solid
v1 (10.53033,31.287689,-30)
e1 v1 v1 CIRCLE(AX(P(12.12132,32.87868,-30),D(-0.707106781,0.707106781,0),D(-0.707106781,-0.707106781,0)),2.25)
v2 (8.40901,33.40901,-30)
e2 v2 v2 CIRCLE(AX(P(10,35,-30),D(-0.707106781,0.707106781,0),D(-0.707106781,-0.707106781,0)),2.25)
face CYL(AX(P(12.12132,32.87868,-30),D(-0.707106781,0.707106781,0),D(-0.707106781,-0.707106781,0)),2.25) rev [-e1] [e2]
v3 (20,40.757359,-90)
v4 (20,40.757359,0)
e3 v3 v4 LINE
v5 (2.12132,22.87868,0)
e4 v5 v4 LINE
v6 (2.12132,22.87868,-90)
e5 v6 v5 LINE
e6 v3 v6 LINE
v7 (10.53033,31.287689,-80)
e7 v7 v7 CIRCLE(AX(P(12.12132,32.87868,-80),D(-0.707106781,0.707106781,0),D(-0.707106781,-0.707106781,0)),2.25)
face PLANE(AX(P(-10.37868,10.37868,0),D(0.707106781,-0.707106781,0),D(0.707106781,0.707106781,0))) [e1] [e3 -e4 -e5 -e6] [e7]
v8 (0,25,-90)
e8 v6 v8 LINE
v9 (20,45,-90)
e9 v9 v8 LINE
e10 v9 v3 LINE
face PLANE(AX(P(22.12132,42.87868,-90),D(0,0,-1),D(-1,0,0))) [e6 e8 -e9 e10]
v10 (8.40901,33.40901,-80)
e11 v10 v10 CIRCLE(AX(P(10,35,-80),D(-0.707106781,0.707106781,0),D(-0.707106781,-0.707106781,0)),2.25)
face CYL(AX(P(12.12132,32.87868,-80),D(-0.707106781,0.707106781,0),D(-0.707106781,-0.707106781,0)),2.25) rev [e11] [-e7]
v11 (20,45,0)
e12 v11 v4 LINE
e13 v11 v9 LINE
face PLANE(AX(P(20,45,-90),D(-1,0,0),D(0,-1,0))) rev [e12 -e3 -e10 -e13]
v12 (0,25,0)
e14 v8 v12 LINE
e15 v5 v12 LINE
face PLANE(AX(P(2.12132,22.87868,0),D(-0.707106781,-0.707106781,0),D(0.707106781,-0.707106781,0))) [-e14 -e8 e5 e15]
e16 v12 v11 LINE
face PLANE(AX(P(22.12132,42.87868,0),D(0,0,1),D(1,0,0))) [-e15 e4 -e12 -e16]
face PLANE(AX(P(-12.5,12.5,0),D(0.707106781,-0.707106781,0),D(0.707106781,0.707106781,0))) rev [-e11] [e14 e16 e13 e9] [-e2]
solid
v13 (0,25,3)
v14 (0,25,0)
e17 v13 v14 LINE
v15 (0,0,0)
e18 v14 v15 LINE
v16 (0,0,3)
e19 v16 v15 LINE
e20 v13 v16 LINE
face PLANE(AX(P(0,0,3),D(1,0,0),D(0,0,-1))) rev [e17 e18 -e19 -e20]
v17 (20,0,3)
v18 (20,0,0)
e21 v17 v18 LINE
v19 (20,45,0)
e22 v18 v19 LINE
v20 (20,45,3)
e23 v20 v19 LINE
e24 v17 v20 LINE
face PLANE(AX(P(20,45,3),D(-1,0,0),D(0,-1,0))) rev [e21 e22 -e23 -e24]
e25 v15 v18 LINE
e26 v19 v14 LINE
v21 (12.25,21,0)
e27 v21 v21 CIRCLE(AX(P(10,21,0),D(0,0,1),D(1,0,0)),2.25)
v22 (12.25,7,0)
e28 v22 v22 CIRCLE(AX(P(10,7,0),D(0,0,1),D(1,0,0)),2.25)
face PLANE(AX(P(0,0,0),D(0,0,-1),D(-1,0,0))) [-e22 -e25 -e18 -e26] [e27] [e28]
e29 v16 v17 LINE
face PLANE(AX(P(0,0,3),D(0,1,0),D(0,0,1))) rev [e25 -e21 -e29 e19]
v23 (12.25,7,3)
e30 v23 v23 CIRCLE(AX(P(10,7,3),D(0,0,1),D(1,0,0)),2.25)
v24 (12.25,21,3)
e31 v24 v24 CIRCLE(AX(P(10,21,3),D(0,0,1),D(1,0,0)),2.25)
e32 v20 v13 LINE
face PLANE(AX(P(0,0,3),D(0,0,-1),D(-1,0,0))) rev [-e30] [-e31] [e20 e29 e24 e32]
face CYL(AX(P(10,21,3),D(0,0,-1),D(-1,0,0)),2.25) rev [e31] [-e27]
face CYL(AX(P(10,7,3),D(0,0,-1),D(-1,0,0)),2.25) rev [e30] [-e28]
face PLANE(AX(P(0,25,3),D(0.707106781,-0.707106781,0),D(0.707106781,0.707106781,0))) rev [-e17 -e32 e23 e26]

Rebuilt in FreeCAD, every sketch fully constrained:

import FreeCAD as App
import Part
import Sketcher
from FreeCAD import Vector
Q = App.Units.Quantity

doc = App.newDocument("Part")
body = doc.addObject("PartDesign::Body", "Body")

# Sketch on XY plane
sketch1 = body.newObject("Sketcher::SketchObject", "Sketch")
sketch1.AttachmentSupport = (doc.getObject("XY_Plane"), [""])
sketch1.MapMode = "FlatFace"
sketch1.addGeometry(Part.LineSegment(Vector(0, 0, 0), Vector(20, 0, 0)), False)
sketch1.addGeometry(Part.LineSegment(Vector(20, 0, 0), Vector(20, 45, 0)), False)
sketch1.addGeometry(Part.LineSegment(Vector(20, 45, 0), Vector(0, 25, 0)), False)
sketch1.addGeometry(Part.LineSegment(Vector(0, 25, 0), Vector(0, 0, 0)), False)
sketch1.addGeometry(Part.Circle(Vector(10, 7, 0), Vector(0, 0, 1), 2.2), False)
sketch1.addGeometry(Part.Circle(Vector(10, 21, 0), Vector(0, 0, 1), 2.2), False)
sketch1.addConstraint(Sketcher.Constraint("Coincident", 0, 2, 1, 1))
sketch1.addConstraint(Sketcher.Constraint("Coincident", 1, 2, 2, 1))
sketch1.addConstraint(Sketcher.Constraint("Coincident", 2, 2, 3, 1))
sketch1.addConstraint(Sketcher.Constraint("Coincident", 3, 2, 0, 1))
sketch1.addConstraint(Sketcher.Constraint("Horizontal", 0))
sketch1.addConstraint(Sketcher.Constraint("Vertical", 1))
sketch1.addConstraint(Sketcher.Constraint("Vertical", 3))
sketch1.addConstraint(Sketcher.Constraint("Coincident", 3, 2, -1, 1))
sketch1.addConstraint(Sketcher.Constraint("Equal", 4, 5))
sketch1.addConstraint(Sketcher.Constraint("Vertical", 4, 3, 5, 3))
sketch1.addConstraint(Sketcher.Constraint("Diameter", 4, Q("4.5 mm")))
sketch1.addConstraint(Sketcher.Constraint("DistanceX", 0, 1, 0, 2, Q("20 mm")))
sketch1.addConstraint(Sketcher.Constraint("DistanceY", 1, 1, 1, 2, Q("45 mm")))
sketch1.addConstraint(Sketcher.Constraint("DistanceY", 3, 2, 3, 1, Q("25 mm")))
sketch1.addConstraint(Sketcher.Constraint("DistanceX", -1, 1, 4, 3, Q("10 mm")))
sketch1.addConstraint(Sketcher.Constraint("DistanceY", -1, 1, 4, 3, Q("7 mm")))
sketch1.addConstraint(Sketcher.Constraint("DistanceY", -1, 1, 5, 3, Q("21 mm")))
pad1 = body.newObject("PartDesign::Pad", "Pad")
pad1.Profile = sketch1
pad1.Length = 3
body2 = doc.addObject("PartDesign::Body", "Body001")

# Sketch on an angled plane
sketch2 = body2.newObject("Sketcher::SketchObject", "Sketch001")
sketch2.Placement = App.Placement(Vector(-12.5, 12.5, 0), App.Rotation(Vector(0, 0, 1), Vector(0.707106781, 0.707106781, 0), Vector(-0.707106781, 0.707106781, 0), "ZXY"))
sketch2.addGeometry(Part.LineSegment(Vector(-90, 46, 0), Vector(-90, 17.7, 0)), False)
sketch2.addGeometry(Part.LineSegment(Vector(-90, 17.7, 0), Vector(0, 17.7, 0)), False)
sketch2.addGeometry(Part.LineSegment(Vector(0, 17.7, 0), Vector(0, 46, 0)), False)
sketch2.addGeometry(Part.LineSegment(Vector(0, 46, 0), Vector(-90, 46, 0)), False)
sketch2.addGeometry(Part.Circle(Vector(-80, 31.8, 0), Vector(0, 0, 1), 2.2), False)
sketch2.addGeometry(Part.Circle(Vector(-30, 31.8, 0), Vector(0, 0, 1), 2.2), False)
sketch2.addConstraint(Sketcher.Constraint("Coincident", 0, 2, 1, 1))
sketch2.addConstraint(Sketcher.Constraint("Coincident", 1, 2, 2, 1))
sketch2.addConstraint(Sketcher.Constraint("Coincident", 2, 2, 3, 1))
sketch2.addConstraint(Sketcher.Constraint("Coincident", 3, 2, 0, 1))
sketch2.addConstraint(Sketcher.Constraint("Vertical", 0))
sketch2.addConstraint(Sketcher.Constraint("Horizontal", 1))
sketch2.addConstraint(Sketcher.Constraint("Vertical", 2))
sketch2.addConstraint(Sketcher.Constraint("Horizontal", 3))
sketch2.addConstraint(Sketcher.Constraint("Equal", 4, 5))
sketch2.addConstraint(Sketcher.Constraint("PointOnObject", 1, 2, -2))
sketch2.addConstraint(Sketcher.Constraint("Horizontal", 4, 3, 5, 3))
sketch2.addConstraint(Sketcher.Constraint("Diameter", 4, Q("4.5 mm")))
sketch2.addConstraint(Sketcher.Constraint("DistanceX", 1, 1, 1, 2, Q("90 mm")))
sketch2.addConstraint(Sketcher.Constraint("DistanceX", 4, 3, -1, 1, Q("80 mm")))
sketch2.addConstraint(Sketcher.Constraint("DistanceX", 5, 3, -1, 1, Q("30 mm")))
sketch2.addConstraint(Sketcher.Constraint("DistanceY", 0, 2, 0, 1, Q("28.284271 mm")))
sketch2.addConstraint(Sketcher.Constraint("DistanceY", -1, 1, 0, 2, Q("17.67767 mm")))
sketch2.addConstraint(Sketcher.Constraint("DistanceY", -1, 1, 4, 3, Q("31.819805 mm")))
pad2 = body2.newObject("PartDesign::Pad", "Pad001")
pad2.Profile = sketch2
pad2.Length = 3
pad2.Reversed = True

# Sketch on XY plane
sketch3 = body2.newObject("Sketcher::SketchObject", "Sketch002")
sketch3.AttachmentSupport = (doc.getObject("XY_Plane001"), [""])
sketch3.MapMode = "FlatFace"
sketch3.addGeometry(Part.LineSegment(Vector(22.1, 42.9, 0), Vector(20, 45, 0)), False)
sketch3.addGeometry(Part.LineSegment(Vector(20, 45, 0), Vector(20, 40.8, 0)), False)
sketch3.addGeometry(Part.LineSegment(Vector(20, 40.8, 0), Vector(22.1, 42.9, 0)), False)
sketch3.addConstraint(Sketcher.Constraint("Coincident", 0, 2, 1, 1))
sketch3.addConstraint(Sketcher.Constraint("Coincident", 1, 2, 2, 1))
sketch3.addConstraint(Sketcher.Constraint("Coincident", 2, 2, 0, 1))
sketch3.addConstraint(Sketcher.Constraint("Vertical", 1))
sketch3.addConstraint(Sketcher.Constraint("Perpendicular", 0, 2))
sketch3.addConstraint(Sketcher.Constraint("Equal", 0, 2))
sketch3.addConstraint(Sketcher.Constraint("Distance", 0, Q("3 mm")))
sketch3.addConstraint(Sketcher.Constraint("DistanceX", -1, 1, 0, 2, Q("20 mm")))
sketch3.addConstraint(Sketcher.Constraint("DistanceY", -1, 1, 0, 2, Q("45 mm")))
pocket1 = body2.newObject("PartDesign::Pocket", "Pocket")
pocket1.Profile = sketch3
pocket1.Type = "ThroughAll"

doc.recompute()
